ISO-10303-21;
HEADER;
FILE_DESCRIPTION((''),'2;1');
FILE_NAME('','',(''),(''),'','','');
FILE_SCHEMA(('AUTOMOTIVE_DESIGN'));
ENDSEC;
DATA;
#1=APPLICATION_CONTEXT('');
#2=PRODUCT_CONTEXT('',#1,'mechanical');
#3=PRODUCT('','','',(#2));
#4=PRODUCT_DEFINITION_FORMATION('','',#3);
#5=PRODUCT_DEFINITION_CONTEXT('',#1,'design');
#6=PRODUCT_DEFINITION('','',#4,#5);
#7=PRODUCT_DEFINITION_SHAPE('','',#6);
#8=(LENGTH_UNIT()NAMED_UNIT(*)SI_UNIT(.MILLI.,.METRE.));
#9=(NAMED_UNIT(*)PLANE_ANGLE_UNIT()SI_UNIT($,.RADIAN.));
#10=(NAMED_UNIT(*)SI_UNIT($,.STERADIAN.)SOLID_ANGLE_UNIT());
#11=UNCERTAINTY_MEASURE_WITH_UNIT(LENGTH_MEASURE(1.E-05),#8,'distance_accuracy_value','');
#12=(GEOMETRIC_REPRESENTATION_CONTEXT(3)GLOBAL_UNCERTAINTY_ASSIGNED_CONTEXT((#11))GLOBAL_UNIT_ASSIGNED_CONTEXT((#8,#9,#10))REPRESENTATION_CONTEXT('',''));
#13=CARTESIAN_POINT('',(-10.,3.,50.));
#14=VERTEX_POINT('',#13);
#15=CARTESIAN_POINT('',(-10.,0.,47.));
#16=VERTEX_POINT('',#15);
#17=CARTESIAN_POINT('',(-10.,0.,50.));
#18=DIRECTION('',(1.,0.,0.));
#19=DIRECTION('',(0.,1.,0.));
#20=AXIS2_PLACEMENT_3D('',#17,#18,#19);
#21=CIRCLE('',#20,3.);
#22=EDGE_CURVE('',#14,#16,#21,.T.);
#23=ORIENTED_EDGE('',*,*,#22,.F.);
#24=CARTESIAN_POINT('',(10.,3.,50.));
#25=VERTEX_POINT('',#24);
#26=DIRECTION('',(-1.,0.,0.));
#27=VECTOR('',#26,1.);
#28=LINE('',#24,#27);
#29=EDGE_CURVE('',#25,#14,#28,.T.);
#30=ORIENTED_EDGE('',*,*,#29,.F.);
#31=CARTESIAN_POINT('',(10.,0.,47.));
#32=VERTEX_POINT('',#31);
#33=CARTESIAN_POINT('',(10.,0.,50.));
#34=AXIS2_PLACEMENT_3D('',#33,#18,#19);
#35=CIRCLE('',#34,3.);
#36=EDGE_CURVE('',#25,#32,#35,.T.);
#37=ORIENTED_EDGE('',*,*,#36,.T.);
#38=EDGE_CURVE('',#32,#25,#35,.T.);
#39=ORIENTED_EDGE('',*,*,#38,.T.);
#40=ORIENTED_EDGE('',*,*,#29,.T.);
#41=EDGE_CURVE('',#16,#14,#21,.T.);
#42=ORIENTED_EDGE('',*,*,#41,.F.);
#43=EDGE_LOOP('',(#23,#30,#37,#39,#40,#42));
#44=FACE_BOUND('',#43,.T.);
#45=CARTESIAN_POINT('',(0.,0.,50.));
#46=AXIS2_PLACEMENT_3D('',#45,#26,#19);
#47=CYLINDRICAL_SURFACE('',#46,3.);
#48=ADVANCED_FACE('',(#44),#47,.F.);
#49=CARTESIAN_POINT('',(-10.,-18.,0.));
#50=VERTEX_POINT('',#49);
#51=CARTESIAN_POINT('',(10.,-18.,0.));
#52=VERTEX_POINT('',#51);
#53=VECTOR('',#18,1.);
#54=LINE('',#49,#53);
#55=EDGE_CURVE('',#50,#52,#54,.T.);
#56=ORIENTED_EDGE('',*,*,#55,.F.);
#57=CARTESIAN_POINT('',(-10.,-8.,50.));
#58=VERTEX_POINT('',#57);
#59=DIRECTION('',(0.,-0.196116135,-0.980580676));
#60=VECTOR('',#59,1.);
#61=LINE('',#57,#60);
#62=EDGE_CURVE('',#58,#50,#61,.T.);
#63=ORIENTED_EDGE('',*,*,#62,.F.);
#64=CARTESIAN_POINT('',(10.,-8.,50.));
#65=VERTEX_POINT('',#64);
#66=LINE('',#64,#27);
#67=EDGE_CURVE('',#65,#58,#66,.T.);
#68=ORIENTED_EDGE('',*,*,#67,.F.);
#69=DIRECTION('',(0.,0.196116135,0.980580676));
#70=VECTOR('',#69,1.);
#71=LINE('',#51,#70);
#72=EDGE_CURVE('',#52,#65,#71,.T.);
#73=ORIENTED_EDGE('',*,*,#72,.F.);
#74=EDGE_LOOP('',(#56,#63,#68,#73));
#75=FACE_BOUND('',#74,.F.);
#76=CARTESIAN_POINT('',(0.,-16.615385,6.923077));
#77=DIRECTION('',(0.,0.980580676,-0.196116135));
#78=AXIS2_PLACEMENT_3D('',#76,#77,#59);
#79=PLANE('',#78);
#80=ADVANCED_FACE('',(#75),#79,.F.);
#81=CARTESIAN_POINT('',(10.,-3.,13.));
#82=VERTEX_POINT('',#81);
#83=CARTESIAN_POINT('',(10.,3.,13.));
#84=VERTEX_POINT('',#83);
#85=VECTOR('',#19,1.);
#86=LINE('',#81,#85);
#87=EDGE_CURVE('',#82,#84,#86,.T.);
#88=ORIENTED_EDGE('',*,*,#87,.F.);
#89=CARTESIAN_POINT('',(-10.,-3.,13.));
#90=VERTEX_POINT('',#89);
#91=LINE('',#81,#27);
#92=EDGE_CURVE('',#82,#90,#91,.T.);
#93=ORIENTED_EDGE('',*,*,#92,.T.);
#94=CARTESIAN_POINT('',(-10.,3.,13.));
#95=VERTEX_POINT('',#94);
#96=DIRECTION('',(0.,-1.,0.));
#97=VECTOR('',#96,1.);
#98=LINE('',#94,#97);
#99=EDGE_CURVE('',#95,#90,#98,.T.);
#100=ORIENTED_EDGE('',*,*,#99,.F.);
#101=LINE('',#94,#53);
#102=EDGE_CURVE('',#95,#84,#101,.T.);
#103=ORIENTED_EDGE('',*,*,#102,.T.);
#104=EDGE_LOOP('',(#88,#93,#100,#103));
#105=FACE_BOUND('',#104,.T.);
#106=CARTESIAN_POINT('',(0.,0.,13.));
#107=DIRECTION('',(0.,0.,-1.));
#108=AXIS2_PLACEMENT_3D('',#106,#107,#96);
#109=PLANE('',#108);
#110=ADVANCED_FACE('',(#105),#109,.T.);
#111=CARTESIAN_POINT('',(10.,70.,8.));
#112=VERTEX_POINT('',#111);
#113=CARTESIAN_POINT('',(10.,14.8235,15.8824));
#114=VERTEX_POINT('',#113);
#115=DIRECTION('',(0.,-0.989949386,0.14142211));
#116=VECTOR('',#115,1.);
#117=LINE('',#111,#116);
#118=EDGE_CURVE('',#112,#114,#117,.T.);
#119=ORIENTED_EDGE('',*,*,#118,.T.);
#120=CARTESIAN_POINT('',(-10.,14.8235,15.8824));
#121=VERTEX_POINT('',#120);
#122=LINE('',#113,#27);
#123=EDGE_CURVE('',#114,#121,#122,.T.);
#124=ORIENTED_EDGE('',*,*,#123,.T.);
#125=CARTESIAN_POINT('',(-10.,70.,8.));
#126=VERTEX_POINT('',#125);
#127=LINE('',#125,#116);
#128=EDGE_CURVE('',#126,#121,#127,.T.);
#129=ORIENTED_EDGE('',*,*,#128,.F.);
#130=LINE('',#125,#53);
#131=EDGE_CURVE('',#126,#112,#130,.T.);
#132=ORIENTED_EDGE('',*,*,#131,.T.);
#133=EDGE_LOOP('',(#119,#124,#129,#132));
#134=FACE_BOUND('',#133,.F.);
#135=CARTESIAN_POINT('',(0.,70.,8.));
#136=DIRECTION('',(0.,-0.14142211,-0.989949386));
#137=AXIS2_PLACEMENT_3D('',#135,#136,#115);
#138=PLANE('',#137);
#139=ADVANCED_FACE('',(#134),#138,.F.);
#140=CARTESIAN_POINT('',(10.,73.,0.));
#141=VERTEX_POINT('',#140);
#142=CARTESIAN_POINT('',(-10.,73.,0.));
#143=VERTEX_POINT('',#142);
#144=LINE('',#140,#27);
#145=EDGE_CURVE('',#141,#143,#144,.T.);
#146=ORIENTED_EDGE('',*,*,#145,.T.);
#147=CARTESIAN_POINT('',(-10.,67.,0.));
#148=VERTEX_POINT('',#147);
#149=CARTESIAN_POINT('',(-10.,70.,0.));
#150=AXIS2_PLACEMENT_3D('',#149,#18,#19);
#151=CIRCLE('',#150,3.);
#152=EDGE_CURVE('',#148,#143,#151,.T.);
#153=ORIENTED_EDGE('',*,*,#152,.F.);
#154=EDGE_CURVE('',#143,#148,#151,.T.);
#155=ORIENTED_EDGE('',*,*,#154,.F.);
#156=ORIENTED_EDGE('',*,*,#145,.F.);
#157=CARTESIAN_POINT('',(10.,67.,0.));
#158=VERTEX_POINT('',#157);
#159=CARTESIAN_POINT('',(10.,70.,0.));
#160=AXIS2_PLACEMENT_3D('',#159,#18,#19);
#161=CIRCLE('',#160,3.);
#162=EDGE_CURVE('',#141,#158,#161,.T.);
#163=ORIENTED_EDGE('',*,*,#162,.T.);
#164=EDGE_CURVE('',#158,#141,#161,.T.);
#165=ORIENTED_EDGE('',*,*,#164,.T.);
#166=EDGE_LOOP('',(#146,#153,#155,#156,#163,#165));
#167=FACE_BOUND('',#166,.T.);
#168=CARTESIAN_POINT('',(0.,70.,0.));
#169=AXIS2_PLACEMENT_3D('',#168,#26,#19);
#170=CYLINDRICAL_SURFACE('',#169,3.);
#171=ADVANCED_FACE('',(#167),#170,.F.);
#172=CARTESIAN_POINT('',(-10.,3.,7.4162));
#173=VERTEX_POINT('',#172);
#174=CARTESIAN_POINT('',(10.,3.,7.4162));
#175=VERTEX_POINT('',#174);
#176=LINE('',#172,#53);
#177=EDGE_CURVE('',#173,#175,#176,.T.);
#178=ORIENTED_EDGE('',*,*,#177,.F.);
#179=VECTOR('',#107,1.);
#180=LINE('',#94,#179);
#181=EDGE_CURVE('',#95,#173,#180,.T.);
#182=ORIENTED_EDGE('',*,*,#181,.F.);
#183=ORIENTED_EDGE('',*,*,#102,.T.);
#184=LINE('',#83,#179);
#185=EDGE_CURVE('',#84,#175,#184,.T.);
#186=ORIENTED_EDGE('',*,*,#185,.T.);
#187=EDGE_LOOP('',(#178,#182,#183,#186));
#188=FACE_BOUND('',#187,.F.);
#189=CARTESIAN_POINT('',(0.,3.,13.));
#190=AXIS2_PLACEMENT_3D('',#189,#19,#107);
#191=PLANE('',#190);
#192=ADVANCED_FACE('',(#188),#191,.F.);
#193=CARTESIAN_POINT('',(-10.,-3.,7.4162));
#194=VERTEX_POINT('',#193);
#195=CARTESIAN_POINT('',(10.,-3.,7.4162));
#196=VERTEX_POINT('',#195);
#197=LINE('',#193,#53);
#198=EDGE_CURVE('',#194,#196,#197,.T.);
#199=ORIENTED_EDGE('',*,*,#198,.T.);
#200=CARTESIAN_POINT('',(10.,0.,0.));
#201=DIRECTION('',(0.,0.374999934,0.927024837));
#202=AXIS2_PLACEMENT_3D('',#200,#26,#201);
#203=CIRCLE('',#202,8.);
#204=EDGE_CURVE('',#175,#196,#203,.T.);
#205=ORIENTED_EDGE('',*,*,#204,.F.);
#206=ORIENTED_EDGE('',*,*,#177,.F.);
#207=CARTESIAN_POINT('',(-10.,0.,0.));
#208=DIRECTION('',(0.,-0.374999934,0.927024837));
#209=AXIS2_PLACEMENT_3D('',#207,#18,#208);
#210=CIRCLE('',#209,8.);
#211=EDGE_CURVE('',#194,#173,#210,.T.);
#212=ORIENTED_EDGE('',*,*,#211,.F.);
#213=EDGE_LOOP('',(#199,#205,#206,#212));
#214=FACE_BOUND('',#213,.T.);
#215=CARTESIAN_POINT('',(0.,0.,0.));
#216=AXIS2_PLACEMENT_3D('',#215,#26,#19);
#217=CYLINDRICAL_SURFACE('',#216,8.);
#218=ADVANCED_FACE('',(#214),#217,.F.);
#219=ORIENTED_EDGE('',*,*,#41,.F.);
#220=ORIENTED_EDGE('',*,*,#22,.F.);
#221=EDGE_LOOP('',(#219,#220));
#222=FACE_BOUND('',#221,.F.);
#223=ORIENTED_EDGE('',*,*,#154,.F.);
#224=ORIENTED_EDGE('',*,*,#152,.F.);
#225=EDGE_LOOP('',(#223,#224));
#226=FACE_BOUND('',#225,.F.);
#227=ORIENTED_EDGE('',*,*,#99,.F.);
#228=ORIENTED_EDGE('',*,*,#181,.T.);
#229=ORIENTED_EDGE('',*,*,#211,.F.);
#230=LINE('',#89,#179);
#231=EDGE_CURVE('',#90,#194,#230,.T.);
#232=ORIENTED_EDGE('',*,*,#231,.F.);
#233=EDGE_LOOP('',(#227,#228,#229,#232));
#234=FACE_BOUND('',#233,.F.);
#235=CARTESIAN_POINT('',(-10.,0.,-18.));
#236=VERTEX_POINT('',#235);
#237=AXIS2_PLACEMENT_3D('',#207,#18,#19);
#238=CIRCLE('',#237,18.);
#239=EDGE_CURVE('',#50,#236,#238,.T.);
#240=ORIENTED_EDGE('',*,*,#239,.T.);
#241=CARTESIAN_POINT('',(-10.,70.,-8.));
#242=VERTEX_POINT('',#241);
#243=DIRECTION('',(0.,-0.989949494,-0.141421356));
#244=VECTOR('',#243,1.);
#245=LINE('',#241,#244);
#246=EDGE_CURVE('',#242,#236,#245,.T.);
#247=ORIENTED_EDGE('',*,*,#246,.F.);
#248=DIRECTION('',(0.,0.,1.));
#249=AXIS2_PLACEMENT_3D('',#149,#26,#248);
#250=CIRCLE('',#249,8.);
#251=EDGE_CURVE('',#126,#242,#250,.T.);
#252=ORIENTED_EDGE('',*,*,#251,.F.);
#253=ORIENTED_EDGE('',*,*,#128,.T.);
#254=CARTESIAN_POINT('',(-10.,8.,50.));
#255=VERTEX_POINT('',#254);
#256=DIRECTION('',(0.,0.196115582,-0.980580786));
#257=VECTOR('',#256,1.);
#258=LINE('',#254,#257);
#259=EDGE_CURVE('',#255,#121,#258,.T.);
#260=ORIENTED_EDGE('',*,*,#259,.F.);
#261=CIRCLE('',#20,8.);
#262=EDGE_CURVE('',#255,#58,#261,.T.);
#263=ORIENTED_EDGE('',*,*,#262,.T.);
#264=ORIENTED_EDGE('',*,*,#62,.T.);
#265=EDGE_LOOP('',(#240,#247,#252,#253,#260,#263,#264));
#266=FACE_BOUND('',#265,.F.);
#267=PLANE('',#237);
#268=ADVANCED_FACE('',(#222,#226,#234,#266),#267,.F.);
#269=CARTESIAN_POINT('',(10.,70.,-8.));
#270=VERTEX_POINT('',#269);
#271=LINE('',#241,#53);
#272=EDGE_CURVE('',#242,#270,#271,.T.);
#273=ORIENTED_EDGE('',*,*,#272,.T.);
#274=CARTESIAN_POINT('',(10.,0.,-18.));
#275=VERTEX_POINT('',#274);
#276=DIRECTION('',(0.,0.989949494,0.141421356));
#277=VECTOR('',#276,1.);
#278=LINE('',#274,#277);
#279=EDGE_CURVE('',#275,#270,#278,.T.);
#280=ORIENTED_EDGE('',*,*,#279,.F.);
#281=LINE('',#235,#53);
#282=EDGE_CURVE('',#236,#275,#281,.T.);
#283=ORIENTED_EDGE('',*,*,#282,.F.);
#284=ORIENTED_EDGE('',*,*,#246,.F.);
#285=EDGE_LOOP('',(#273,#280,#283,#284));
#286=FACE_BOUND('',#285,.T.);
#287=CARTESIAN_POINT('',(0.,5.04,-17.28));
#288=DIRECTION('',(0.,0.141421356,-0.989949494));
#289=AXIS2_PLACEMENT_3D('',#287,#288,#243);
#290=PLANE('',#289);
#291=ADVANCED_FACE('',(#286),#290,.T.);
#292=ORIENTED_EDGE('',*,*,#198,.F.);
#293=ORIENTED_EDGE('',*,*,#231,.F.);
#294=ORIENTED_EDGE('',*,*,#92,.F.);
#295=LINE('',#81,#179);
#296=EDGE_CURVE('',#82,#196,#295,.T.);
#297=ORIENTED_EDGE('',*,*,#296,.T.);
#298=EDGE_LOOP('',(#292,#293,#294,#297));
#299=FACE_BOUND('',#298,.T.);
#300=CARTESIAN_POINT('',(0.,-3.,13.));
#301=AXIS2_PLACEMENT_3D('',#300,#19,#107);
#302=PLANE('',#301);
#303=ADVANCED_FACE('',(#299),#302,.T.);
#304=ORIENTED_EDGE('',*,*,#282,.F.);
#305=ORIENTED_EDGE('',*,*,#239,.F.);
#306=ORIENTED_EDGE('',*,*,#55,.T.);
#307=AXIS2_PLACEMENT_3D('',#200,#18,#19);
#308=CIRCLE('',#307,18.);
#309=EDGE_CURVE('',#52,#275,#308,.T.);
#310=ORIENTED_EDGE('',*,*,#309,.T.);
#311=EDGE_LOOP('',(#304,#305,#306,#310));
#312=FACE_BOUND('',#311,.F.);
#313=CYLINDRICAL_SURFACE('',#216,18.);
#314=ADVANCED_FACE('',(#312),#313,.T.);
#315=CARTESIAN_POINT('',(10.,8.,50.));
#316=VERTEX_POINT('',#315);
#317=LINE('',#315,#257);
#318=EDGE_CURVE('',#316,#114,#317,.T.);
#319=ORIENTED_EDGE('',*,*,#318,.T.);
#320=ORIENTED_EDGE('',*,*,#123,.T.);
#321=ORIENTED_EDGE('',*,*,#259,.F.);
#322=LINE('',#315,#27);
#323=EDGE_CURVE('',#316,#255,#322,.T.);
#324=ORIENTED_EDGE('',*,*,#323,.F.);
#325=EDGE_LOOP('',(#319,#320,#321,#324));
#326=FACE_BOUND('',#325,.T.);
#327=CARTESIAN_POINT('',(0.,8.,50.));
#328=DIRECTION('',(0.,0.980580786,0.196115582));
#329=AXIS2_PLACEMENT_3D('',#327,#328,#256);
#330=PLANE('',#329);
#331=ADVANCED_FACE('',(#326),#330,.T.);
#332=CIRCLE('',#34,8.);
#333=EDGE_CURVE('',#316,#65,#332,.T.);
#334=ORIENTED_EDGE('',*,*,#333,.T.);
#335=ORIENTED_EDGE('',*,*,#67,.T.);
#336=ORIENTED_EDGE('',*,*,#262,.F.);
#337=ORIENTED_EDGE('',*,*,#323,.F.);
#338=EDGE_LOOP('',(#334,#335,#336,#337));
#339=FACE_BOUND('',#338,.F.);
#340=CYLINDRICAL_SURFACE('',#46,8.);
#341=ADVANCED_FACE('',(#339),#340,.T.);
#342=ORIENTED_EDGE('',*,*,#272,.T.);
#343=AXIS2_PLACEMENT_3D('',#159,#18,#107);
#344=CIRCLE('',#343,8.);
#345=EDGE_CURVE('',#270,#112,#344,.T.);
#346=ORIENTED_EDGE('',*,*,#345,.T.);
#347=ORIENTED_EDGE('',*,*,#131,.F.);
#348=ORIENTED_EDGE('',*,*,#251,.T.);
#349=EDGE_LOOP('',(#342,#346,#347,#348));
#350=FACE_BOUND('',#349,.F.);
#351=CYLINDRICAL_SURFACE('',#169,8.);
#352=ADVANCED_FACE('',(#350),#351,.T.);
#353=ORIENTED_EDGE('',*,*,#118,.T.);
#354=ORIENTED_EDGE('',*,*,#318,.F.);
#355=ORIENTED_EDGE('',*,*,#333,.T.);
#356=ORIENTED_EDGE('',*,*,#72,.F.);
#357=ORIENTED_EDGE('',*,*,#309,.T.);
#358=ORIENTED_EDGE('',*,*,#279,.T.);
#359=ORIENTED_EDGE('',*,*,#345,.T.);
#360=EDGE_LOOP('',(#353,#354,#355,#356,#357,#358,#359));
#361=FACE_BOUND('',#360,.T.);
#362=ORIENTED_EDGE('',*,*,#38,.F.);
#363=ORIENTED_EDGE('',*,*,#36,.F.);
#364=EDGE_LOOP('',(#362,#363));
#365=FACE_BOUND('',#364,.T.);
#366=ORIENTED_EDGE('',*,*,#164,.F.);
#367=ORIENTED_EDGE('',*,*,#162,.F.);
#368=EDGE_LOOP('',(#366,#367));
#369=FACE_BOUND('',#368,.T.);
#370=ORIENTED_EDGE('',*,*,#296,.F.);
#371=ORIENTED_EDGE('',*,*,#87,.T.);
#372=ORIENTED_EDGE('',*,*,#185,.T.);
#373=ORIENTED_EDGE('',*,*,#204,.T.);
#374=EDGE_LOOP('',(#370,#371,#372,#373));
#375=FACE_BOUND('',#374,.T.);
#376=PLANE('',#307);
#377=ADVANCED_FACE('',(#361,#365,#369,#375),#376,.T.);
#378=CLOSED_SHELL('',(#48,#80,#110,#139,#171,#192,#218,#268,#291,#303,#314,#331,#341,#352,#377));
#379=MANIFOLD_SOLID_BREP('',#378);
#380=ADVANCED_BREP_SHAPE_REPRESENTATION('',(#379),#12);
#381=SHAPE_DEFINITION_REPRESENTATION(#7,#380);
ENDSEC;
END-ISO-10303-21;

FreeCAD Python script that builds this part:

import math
import FreeCAD as App
import Part
import Sketcher
from FreeCAD import Vector
Q = App.Units.Quantity

doc = App.newDocument("Part")
body = doc.addObject("PartDesign::Body", "Body")

# Sketch on YZ plane
sketch1 = doc.addObject("Sketcher::SketchObject", "Sketch")
body.addObject(sketch1)
sketch1.AttachmentSupport = (doc.YZ_Plane, [""])
sketch1.MapMode = "FlatFace"
sketch1.addGeometry(Part.ArcOfCircle(Part.Circle(Vector(0, 0, 0), Vector(0, 0, 1), 18), math.radians(180), math.radians(270)), False)
sketch1.addGeometry(Part.LineSegment(Vector(0, -18, 0), Vector(70, -8, 0)), False)
sketch1.addGeometry(Part.ArcOfCircle(Part.Circle(Vector(70, 0, 0), Vector(0, 0, 1), 8), math.radians(-90), math.radians(90)), False)
sketch1.addGeometry(Part.LineSegment(Vector(70, 8, 0), Vector(14.8, 15.9, 0)), False)
sketch1.addGeometry(Part.LineSegment(Vector(14.8, 15.9, 0), Vector(8, 50, 0)), False)
sketch1.addGeometry(Part.ArcOfCircle(Part.Circle(Vector(0, 50, 0), Vector(0, 0, 1), 8), math.radians(0), math.radians(180)), False)
sketch1.addGeometry(Part.LineSegment(Vector(-8, 50, 0), Vector(-18, 0, 0)), False)
sketch1.addGeometry(Part.LineSegment(Vector(-3, 13, 0), Vector(3, 13, 0)), False)
sketch1.addGeometry(Part.LineSegment(Vector(3, 13, 0), Vector(3, 7.4, 0)), False)
sketch1.addGeometry(Part.ArcOfCircle(Part.Circle(Vector(0, 0, 0), Vector(0, 0, 1), 8), math.radians(112), math.radians(428)), False)
sketch1.addGeometry(Part.LineSegment(Vector(-3, 7.4, 0), Vector(-3, 13, 0)), False)
sketch1.addGeometry(Part.Circle(Vector(0, 50, 0), Vector(0, 0, 1), 3), False)
sketch1.addGeometry(Part.Circle(Vector(70, 0, 0), Vector(0, 0, 1), 3), False)
sketch1.addConstraint(Sketcher.Constraint("Coincident", 0, 2, 1, 1))
sketch1.addConstraint(Sketcher.Constraint("Coincident", 1, 2, 2, 1))
sketch1.addConstraint(Sketcher.Constraint("Coincident", 2, 2, 3, 1))
sketch1.addConstraint(Sketcher.Constraint("Coincident", 3, 2, 4, 1))
sketch1.addConstraint(Sketcher.Constraint("Coincident", 4, 2, 5, 1))
sketch1.addConstraint(Sketcher.Constraint("Coincident", 5, 2, 6, 1))
sketch1.addConstraint(Sketcher.Constraint("Coincident", 6, 2, 0, 1))
sketch1.addConstraint(Sketcher.Constraint("Coincident", 7, 2, 8, 1))
sketch1.addConstraint(Sketcher.Constraint("Coincident", 8, 2, 9, 2))
sketch1.addConstraint(Sketcher.Constraint("Coincident", 9, 1, 10, 1))
sketch1.addConstraint(Sketcher.Constraint("Coincident", 10, 2, 7, 1))
sketch1.addConstraint(Sketcher.Constraint("Horizontal", 7))
sketch1.addConstraint(Sketcher.Constraint("Vertical", 8))
sketch1.addConstraint(Sketcher.Constraint("Vertical", 10))
sketch1.addConstraint(Sketcher.Constraint("Coincident", 0, 3, -1, 1))
sketch1.addConstraint(Sketcher.Constraint("Coincident", 9, 3, -1, 1))
sketch1.addConstraint(Sketcher.Constraint("Coincident", 11, 3, 5, 3))
sketch1.addConstraint(Sketcher.Constraint("Coincident", 12, 3, 2, 3))
sketch1.addConstraint(Sketcher.Constraint("Equal", 2, 5))
sketch1.addConstraint(Sketcher.Constraint("Equal", 5, 9))
sketch1.addConstraint(Sketcher.Constraint("Equal", 11, 12))
sketch1.addConstraint(Sketcher.Constraint("Symmetric", 4, 2, 5, 2, -2))
sketch1.addConstraint(Sketcher.Constraint("Symmetric", 1, 2, 2, 2, -1))
sketch1.addConstraint(Sketcher.Constraint("PointOnObject", 0, 2, -2))
sketch1.addConstraint(Sketcher.Constraint("PointOnObject", 6, 2, -1))
sketch1.addConstraint(Sketcher.Constraint("Horizontal", 11, 3, 4, 2))
sketch1.addConstraint(Sketcher.Constraint("Horizontal", 8, 2, 9, 1))
sketch1.addConstraint(Sketcher.Constraint("Vertical", 12, 3, 1, 2))
sketch1.addConstraint(Sketcher.Constraint("Diameter", 11, Q("6 mm")))
sketch1.addConstraint(Sketcher.Constraint("Radius", 0, Q("18 mm")))
sketch1.addConstraint(Sketcher.Constraint("Radius", 2, Q("8 mm")))
sketch1.addConstraint(Sketcher.Constraint("DistanceX", 7, 1, 7, 2, Q("6 mm")))
sketch1.addConstraint(Sketcher.Constraint("DistanceX", -1, 1, 2, 3, Q("70 mm")))
sketch1.addConstraint(Sketcher.Constraint("DistanceY", -1, 1, 5, 3, Q("50 mm")))
sketch1.addConstraint(Sketcher.Constraint("DistanceY", -1, 1, 7, 2, Q("13 mm")))
sketch1.addConstraint(Sketcher.Constraint("Angle", 3, Q("171.8699 deg")))
sketch1.addConstraint(Sketcher.Constraint("Angle", 4, Q("101.31 deg")))
pad1 = doc.addObject("PartDesign::Pad", "Pad")
body.addObject(pad1)
pad1.Profile = sketch1
pad1.Type = "TwoLengths"
pad1.Length = 10
pad1.Length2 = 10

doc.recompute()
